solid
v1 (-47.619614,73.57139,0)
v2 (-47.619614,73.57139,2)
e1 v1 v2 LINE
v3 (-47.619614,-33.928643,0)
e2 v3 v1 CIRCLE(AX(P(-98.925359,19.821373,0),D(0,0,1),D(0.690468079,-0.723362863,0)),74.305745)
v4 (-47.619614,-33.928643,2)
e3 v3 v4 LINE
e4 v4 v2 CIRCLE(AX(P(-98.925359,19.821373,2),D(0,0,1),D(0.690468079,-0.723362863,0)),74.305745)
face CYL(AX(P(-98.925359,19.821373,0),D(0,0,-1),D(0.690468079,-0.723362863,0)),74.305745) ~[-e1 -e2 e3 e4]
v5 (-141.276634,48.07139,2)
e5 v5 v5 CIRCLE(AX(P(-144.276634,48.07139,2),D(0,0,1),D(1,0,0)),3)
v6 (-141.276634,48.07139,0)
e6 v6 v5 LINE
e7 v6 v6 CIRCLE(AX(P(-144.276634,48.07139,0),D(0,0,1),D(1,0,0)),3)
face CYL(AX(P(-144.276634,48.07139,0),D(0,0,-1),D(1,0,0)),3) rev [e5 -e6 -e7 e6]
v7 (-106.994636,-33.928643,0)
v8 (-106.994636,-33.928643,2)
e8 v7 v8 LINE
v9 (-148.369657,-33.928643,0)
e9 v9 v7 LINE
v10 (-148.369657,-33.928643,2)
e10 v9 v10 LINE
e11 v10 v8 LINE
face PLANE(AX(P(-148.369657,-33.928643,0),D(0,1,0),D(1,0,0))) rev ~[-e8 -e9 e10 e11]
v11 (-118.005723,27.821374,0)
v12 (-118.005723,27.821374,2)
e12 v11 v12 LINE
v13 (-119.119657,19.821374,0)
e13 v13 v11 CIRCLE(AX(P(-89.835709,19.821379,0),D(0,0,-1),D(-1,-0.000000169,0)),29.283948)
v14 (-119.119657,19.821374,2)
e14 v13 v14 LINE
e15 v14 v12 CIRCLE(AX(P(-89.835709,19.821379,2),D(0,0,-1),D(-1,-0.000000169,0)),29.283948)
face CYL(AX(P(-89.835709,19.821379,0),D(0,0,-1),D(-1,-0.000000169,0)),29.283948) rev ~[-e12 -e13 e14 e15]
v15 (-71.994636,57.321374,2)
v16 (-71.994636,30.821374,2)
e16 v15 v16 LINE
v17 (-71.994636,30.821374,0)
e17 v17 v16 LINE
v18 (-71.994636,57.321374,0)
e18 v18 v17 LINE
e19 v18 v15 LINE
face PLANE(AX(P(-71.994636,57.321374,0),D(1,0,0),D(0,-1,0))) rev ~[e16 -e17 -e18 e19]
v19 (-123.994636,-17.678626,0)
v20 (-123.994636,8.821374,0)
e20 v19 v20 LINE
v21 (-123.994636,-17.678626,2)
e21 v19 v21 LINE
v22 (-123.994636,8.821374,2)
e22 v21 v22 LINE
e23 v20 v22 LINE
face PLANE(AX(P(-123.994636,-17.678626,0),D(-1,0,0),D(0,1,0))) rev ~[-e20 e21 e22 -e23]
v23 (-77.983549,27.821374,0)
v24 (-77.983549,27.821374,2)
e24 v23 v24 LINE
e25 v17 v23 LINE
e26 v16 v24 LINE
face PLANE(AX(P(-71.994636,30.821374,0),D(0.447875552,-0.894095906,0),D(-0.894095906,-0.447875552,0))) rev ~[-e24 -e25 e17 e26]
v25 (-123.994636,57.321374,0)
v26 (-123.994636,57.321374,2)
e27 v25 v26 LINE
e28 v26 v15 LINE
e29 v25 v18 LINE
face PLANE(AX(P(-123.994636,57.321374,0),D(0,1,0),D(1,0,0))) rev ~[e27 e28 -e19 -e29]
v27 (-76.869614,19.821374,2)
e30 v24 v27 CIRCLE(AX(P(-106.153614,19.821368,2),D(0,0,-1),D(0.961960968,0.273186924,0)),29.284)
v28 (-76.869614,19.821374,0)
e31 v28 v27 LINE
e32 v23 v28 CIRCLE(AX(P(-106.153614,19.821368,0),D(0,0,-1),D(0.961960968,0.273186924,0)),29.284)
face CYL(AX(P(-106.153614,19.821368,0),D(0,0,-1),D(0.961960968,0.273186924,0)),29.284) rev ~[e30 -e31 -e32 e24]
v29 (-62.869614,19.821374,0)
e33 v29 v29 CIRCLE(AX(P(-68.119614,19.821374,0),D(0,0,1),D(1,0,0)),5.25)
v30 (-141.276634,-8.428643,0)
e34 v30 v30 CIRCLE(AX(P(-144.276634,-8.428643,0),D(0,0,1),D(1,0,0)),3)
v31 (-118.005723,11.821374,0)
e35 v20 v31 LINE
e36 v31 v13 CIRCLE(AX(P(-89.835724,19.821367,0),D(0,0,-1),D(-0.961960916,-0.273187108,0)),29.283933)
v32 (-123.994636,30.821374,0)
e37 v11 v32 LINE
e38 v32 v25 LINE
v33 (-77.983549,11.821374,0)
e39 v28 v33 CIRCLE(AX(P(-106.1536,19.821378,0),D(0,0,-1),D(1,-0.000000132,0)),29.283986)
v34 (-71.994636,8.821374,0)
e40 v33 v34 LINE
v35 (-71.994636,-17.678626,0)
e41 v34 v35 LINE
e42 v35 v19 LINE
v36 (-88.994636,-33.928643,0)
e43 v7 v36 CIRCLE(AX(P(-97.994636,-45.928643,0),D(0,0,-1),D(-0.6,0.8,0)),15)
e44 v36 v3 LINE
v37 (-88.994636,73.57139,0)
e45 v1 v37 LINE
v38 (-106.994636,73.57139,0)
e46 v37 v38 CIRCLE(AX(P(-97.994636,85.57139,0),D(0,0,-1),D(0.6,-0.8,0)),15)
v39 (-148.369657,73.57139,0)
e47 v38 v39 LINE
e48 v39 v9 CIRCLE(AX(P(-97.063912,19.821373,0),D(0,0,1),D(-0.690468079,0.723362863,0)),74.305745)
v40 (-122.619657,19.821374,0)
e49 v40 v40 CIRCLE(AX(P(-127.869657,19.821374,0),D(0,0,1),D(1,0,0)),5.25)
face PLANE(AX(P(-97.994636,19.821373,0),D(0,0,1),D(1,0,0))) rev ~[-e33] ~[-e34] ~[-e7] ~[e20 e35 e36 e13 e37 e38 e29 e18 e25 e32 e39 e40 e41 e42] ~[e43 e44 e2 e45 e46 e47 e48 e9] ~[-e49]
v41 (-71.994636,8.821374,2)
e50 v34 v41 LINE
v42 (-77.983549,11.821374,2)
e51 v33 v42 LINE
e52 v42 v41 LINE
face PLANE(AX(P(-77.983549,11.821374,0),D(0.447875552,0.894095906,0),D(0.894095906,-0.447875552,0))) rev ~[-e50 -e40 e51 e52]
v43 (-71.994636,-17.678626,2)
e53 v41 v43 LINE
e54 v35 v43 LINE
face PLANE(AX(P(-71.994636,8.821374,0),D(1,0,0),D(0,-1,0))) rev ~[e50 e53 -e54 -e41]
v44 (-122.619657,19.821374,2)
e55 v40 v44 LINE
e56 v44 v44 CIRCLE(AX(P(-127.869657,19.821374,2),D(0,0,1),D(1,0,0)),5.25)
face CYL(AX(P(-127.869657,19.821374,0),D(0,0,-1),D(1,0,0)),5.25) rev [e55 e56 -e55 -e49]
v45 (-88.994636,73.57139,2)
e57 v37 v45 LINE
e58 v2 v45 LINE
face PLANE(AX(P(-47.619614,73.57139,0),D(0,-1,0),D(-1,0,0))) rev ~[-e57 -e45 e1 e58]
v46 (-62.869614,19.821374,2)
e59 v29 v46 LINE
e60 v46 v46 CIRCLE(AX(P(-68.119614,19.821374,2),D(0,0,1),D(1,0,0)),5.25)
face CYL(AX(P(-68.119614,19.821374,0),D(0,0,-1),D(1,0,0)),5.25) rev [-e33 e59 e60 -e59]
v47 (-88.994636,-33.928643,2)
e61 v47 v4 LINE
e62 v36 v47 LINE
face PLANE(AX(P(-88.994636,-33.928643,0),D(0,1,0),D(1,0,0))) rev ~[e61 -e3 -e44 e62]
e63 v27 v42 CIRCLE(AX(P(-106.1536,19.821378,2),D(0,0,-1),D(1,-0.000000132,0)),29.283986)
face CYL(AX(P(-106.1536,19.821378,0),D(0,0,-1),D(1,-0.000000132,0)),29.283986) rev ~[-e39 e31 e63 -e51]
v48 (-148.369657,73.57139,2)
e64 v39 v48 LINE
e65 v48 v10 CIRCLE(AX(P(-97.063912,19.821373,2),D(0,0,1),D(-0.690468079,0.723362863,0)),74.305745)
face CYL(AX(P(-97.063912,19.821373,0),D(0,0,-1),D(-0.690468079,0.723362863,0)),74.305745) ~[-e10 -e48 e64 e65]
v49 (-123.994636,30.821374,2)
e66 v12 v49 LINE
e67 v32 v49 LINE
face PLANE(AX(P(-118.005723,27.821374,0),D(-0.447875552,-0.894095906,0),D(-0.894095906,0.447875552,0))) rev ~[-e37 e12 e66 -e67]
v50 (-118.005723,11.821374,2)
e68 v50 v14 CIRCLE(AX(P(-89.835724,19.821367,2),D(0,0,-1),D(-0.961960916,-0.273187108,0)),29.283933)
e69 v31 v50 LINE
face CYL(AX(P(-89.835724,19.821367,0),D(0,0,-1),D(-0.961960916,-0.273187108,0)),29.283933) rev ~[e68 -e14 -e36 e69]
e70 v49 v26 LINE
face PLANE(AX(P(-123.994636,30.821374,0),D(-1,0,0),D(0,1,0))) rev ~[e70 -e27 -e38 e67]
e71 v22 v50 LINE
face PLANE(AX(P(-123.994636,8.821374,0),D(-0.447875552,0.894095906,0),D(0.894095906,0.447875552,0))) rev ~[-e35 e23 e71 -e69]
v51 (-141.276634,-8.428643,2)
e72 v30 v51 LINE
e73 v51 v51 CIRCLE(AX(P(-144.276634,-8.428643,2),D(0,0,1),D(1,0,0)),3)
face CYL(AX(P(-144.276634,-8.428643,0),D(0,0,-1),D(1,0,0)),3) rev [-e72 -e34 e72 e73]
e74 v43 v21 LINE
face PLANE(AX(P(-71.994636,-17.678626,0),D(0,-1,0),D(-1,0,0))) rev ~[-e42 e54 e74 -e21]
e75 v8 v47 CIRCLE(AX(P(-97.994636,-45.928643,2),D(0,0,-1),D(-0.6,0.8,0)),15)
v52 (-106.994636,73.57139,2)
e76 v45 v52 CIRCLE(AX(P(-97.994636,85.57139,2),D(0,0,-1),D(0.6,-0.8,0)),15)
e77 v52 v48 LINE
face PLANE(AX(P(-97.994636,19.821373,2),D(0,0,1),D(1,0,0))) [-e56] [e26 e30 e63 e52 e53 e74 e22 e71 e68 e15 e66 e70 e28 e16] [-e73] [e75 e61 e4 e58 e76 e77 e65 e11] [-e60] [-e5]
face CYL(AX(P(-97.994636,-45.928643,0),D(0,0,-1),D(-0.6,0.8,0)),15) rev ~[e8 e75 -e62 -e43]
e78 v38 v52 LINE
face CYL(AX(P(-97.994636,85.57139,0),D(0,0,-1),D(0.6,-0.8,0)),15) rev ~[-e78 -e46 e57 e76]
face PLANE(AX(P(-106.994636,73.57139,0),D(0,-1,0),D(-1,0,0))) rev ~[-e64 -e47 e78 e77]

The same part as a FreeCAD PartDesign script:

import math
import FreeCAD as App
import Part
import Sketcher
from FreeCAD import Vector
Q = App.Units.Quantity

doc = App.newDocument("Part")
body = doc.addObject("PartDesign::Body", "Body")

sketch1 = body.newObject("Sketcher::SketchObject", "Sketch")
sketch1.AttachmentSupport = (doc.getObject("XY_Plane"), [""])
sketch1.MapMode = "FlatFace"
sketch1.addGeometry([
    Part.LineSegment(Vector(-106.994636, 73.57139, 0), Vector(-148.369657, 73.57139, 0)),
    Part.ArcOfCircle(Part.Circle(Vector(-97.063912, 19.821373, 0), Vector(0, 0, 1), 74.305745), math.radians(133.667173), math.radians(226.332827)),
    Part.LineSegment(Vector(-148.369657, -33.928643, 0), Vector(-106.994636, -33.928643, 0)),
    Part.ArcOfCircle(Part.Circle(Vector(-97.994636, -45.928643, 0), Vector(0, 0, 1), 15), math.radians(53.130102), math.radians(126.869898)),
    Part.LineSegment(Vector(-88.994636, -33.928643, 0), Vector(-47.619614, -33.928643, 0)),
    Part.ArcOfCircle(Part.Circle(Vector(-98.925359, 19.821373, 0), Vector(0, 0, 1), 74.305745), math.radians(-46.332827), math.radians(46.332827)),
    Part.LineSegment(Vector(-47.619614, 73.57139, 0), Vector(-88.994636, 73.57139, 0)),
    Part.ArcOfCircle(Part.Circle(Vector(-97.994636, 85.57139, 0), Vector(0, 0, 1), 15), math.radians(-126.869898), math.radians(-53.130102)),
    Part.Circle(Vector(-144.276634, -8.428643, 0), Vector(0, 0, 1), 3),
    Part.Circle(Vector(-127.869657, 19.821374, 0), Vector(0, 0, 1), 5.25),
    Part.Circle(Vector(-144.276634, 48.07139, 0), Vector(0, 0, 1), 3),
    Part.LineSegment(Vector(-118.005723, 27.821374, 0), Vector(-123.994636, 30.821374, 0)),
    Part.LineSegment(Vector(-123.994636, 30.821374, 0), Vector(-123.994636, 57.321374, 0)),
    Part.LineSegment(Vector(-123.994636, 57.321374, 0), Vector(-71.994636, 57.321374, 0)),
    Part.LineSegment(Vector(-71.994636, 57.321374, 0), Vector(-71.994636, 30.821374, 0)),
    Part.LineSegment(Vector(-71.994636, 30.821374, 0), Vector(-77.983549, 27.821374, 0)),
    Part.ArcOfCircle(Part.Circle(Vector(-106.153614, 19.821368, 0), Vector(0, 0, 1), 29.284), math.radians(0.000011), math.radians(15.853996)),
    Part.ArcOfCircle(Part.Circle(Vector(-106.1536, 19.821378, 0), Vector(0, 0, 1), 29.283986), math.radians(-15.854), math.radians(-0.000008)),
    Part.LineSegment(Vector(-77.983549, 11.821374, 0), Vector(-71.994636, 8.821374, 0)),
    Part.LineSegment(Vector(-71.994636, 8.821374, 0), Vector(-71.994636, -17.678626, 0)),
    Part.LineSegment(Vector(-71.994636, -17.678626, 0), Vector(-123.994636, -17.678626, 0)),
    Part.LineSegment(Vector(-123.994636, -17.678626, 0), Vector(-123.994636, 8.821374, 0)),
    Part.LineSegment(Vector(-123.994636, 8.821374, 0), Vector(-118.005723, 11.821374, 0)),
    Part.ArcOfCircle(Part.Circle(Vector(-89.835724, 19.821367, 0), Vector(0, 0, 1), 29.283933), math.radians(179.999986), math.radians(195.854007)),
    Part.ArcOfCircle(Part.Circle(Vector(-89.835709, 19.821379, 0), Vector(0, 0, 1), 29.283948), math.radians(164.145997), math.radians(180.00001)),
    Part.Circle(Vector(-68.119614, 19.821374, 0), Vector(0, 0, 1), 5.25),
], False)
sketch1.addConstraint([
    Sketcher.Constraint("Coincident", 0, 2, 1, 1),
    Sketcher.Constraint("Coincident", 1, 2, 2, 1),
    Sketcher.Constraint("Coincident", 2, 2, 3, 2),
    Sketcher.Constraint("Coincident", 3, 1, 4, 1),
    Sketcher.Constraint("Coincident", 4, 2, 5, 1),
    Sketcher.Constraint("Coincident", 5, 2, 6, 1),
    Sketcher.Constraint("Coincident", 6, 2, 7, 2),
    Sketcher.Constraint("Coincident", 7, 1, 0, 1),
    Sketcher.Constraint("Coincident", 11, 2, 12, 1),
    Sketcher.Constraint("Coincident", 12, 2, 13, 1),
    Sketcher.Constraint("Coincident", 13, 2, 14, 1),
    Sketcher.Constraint("Coincident", 14, 2, 15, 1),
    Sketcher.Constraint("Coincident", 15, 2, 16, 2),
    Sketcher.Constraint("Coincident", 16, 1, 17, 2),
    Sketcher.Constraint("Coincident", 17, 1, 18, 1),
    Sketcher.Constraint("Coincident", 18, 2, 19, 1),
    Sketcher.Constraint("Coincident", 19, 2, 20, 1),
    Sketcher.Constraint("Coincident", 20, 2, 21, 1),
    Sketcher.Constraint("Coincident", 21, 2, 22, 1),
    Sketcher.Constraint("Coincident", 22, 2, 23, 2),
    Sketcher.Constraint("Coincident", 23, 1, 24, 2),
    Sketcher.Constraint("Coincident", 24, 1, 11, 1),
    Sketcher.Constraint("Horizontal", 0),
    Sketcher.Constraint("Horizontal", 2),
    Sketcher.Constraint("Horizontal", 4),
    Sketcher.Constraint("Horizontal", 6),
    Sketcher.Constraint("Vertical", 12),
    Sketcher.Constraint("Horizontal", 13),
    Sketcher.Constraint("Vertical", 14),
    Sketcher.Constraint("Vertical", 19),
    Sketcher.Constraint("Horizontal", 20),
    Sketcher.Constraint("Vertical", 21),
    Sketcher.Constraint("Diameter", 8, Q("6 mm")),
    Sketcher.Constraint("Diameter", 10, Q("6 mm")),
    Sketcher.Constraint("Radius", 3, Q("15 mm")),
    Sketcher.Constraint("Radius", 7, Q("15 mm")),
    Sketcher.Constraint("Diameter", 9, Q("10.5 mm")),
    Sketcher.Constraint("Diameter", 25, Q("10.5 mm")),
    Sketcher.Constraint("DistanceX", 13, 1, 13, 2, Q("52 mm")),
    Sketcher.Constraint("DistanceX", 20, 2, 20, 1, Q("52 mm")),
    Sketcher.Constraint("DistanceY", 12, 1, 12, 2, Q("26.5 mm")),
    Sketcher.Constraint("DistanceY", 14, 2, 14, 1, Q("26.5 mm")),
    Sketcher.Constraint("DistanceY", 19, 2, 19, 1, Q("26.5 mm")),
    Sketcher.Constraint("DistanceY", 21, 1, 21, 2, Q("26.5 mm")),
    Sketcher.Constraint("Radius", 16, Q("29.284 mm")),
    Sketcher.Constraint("DistanceY", 0, 2, 7, 3, Q("12 mm")),
    Sketcher.Constraint("DistanceY", 3, 3, 1, 2, Q("12 mm")),
    Sketcher.Constraint("DistanceX", 3, 3, 3, 1, Q("9 mm")),
    Sketcher.Constraint("DistanceY", 5, 2, 7, 3, Q("12 mm")),
    Sketcher.Constraint("DistanceY", 9, 3, 11, 2, Q("11 mm")),
    Sketcher.Constraint("DistanceY", 5, 3, 11, 2, Q("11 mm")),
    Sketcher.Constraint("DistanceX", 12, 2, 7, 1, Q("17 mm")),
    Sketcher.Constraint("DistanceY", 25, 3, 14, 2, Q("11 mm")),
    Sketcher.Constraint("DistanceY", 1, 3, 14, 2, Q("11 mm")),
    Sketcher.Constraint("DistanceY", 15, 2, 14, 2, Q("3 mm")),
    Sketcher.Constraint("DistanceY", 16, 1, 15, 2, Q("8 mm")),
    Sketcher.Constraint("DistanceY", 17, 1, 16, 1, Q("8 mm")),
    Sketcher.Constraint("DistanceY", 18, 2, 17, 1, Q("3 mm")),
    Sketcher.Constraint("DistanceX", 3, 1, 19, 2, Q("17 mm")),
    Sketcher.Constraint("DistanceY", 21, 2, 22, 2, Q("3 mm")),
    Sketcher.Constraint("DistanceY", 22, 2, 23, 1, Q("8 mm")),
    Sketcher.Constraint("DistanceY", 24, 1, 11, 2, Q("3 mm")),
    Sketcher.Constraint("DistanceY", 3, 3, 8, 3, Q("37.5 mm")),
    Sketcher.Constraint("DistanceY", 10, 3, 7, 3, Q("37.5 mm")),
    Sketcher.Constraint("DistanceX", 0, 2, 9, 3, Q("20.5 mm")),
    Sketcher.Constraint("DistanceX", 1, 2, 9, 3, Q("20.5 mm")),
    Sketcher.Constraint("DistanceX", 25, 3, 4, 2, Q("20.5 mm")),
    Sketcher.Constraint("DistanceX", 16, 1, 25, 3, Q("8.75 mm")),
    Sketcher.Constraint("DistanceX", 9, 3, 23, 1, Q("8.75 mm")),
    Sketcher.Constraint("Radius", 1, Q("74.305745 mm")),
    Sketcher.Constraint("Radius", 5, Q("74.305745 mm")),
    Sketcher.Constraint("Radius", 17, Q("29.283986 mm")),
    Sketcher.Constraint("Radius", 23, Q("29.283933 mm")),
    Sketcher.Constraint("Radius", 24, Q("29.283948 mm")),
    Sketcher.Constraint("DistanceX", 8, 3, 3, 3, Q("46.281998 mm")),
    Sketcher.Constraint("DistanceX", 8, 3, 7, 3, Q("46.281998 mm")),
    Sketcher.Constraint("DistanceX", 10, 3, 7, 3, Q("46.281998 mm")),
    Sketcher.Constraint("DistanceX", 0, 2, 0, 1, Q("41.375021 mm")),
    Sketcher.Constraint("DistanceX", 17, 3, -1, 1, Q("106.1536 mm")),
    Sketcher.Constraint("DistanceX", 16, 3, 1, 3, Q("9.089702 mm")),
    Sketcher.Constraint("Distance", 11, Q("6.698289 mm")),
    Sketcher.Constraint("Distance", 15, Q("6.698289 mm")),
    Sketcher.Constraint("Distance", 18, Q("6.698289 mm")),
    Sketcher.Constraint("Distance", 22, Q("6.698289 mm")),
    Sketcher.Constraint("DistanceX", 4, 1, 4, 2, Q("41.375022 mm")),
    Sketcher.Constraint("DistanceY", -1, 1, 7, 3, Q("85.57139 mm")),
])
pad1 = body.newObject("PartDesign::Pad", "Pad")
pad1.Profile = sketch1
pad1.Length = 2

doc.recompute()
